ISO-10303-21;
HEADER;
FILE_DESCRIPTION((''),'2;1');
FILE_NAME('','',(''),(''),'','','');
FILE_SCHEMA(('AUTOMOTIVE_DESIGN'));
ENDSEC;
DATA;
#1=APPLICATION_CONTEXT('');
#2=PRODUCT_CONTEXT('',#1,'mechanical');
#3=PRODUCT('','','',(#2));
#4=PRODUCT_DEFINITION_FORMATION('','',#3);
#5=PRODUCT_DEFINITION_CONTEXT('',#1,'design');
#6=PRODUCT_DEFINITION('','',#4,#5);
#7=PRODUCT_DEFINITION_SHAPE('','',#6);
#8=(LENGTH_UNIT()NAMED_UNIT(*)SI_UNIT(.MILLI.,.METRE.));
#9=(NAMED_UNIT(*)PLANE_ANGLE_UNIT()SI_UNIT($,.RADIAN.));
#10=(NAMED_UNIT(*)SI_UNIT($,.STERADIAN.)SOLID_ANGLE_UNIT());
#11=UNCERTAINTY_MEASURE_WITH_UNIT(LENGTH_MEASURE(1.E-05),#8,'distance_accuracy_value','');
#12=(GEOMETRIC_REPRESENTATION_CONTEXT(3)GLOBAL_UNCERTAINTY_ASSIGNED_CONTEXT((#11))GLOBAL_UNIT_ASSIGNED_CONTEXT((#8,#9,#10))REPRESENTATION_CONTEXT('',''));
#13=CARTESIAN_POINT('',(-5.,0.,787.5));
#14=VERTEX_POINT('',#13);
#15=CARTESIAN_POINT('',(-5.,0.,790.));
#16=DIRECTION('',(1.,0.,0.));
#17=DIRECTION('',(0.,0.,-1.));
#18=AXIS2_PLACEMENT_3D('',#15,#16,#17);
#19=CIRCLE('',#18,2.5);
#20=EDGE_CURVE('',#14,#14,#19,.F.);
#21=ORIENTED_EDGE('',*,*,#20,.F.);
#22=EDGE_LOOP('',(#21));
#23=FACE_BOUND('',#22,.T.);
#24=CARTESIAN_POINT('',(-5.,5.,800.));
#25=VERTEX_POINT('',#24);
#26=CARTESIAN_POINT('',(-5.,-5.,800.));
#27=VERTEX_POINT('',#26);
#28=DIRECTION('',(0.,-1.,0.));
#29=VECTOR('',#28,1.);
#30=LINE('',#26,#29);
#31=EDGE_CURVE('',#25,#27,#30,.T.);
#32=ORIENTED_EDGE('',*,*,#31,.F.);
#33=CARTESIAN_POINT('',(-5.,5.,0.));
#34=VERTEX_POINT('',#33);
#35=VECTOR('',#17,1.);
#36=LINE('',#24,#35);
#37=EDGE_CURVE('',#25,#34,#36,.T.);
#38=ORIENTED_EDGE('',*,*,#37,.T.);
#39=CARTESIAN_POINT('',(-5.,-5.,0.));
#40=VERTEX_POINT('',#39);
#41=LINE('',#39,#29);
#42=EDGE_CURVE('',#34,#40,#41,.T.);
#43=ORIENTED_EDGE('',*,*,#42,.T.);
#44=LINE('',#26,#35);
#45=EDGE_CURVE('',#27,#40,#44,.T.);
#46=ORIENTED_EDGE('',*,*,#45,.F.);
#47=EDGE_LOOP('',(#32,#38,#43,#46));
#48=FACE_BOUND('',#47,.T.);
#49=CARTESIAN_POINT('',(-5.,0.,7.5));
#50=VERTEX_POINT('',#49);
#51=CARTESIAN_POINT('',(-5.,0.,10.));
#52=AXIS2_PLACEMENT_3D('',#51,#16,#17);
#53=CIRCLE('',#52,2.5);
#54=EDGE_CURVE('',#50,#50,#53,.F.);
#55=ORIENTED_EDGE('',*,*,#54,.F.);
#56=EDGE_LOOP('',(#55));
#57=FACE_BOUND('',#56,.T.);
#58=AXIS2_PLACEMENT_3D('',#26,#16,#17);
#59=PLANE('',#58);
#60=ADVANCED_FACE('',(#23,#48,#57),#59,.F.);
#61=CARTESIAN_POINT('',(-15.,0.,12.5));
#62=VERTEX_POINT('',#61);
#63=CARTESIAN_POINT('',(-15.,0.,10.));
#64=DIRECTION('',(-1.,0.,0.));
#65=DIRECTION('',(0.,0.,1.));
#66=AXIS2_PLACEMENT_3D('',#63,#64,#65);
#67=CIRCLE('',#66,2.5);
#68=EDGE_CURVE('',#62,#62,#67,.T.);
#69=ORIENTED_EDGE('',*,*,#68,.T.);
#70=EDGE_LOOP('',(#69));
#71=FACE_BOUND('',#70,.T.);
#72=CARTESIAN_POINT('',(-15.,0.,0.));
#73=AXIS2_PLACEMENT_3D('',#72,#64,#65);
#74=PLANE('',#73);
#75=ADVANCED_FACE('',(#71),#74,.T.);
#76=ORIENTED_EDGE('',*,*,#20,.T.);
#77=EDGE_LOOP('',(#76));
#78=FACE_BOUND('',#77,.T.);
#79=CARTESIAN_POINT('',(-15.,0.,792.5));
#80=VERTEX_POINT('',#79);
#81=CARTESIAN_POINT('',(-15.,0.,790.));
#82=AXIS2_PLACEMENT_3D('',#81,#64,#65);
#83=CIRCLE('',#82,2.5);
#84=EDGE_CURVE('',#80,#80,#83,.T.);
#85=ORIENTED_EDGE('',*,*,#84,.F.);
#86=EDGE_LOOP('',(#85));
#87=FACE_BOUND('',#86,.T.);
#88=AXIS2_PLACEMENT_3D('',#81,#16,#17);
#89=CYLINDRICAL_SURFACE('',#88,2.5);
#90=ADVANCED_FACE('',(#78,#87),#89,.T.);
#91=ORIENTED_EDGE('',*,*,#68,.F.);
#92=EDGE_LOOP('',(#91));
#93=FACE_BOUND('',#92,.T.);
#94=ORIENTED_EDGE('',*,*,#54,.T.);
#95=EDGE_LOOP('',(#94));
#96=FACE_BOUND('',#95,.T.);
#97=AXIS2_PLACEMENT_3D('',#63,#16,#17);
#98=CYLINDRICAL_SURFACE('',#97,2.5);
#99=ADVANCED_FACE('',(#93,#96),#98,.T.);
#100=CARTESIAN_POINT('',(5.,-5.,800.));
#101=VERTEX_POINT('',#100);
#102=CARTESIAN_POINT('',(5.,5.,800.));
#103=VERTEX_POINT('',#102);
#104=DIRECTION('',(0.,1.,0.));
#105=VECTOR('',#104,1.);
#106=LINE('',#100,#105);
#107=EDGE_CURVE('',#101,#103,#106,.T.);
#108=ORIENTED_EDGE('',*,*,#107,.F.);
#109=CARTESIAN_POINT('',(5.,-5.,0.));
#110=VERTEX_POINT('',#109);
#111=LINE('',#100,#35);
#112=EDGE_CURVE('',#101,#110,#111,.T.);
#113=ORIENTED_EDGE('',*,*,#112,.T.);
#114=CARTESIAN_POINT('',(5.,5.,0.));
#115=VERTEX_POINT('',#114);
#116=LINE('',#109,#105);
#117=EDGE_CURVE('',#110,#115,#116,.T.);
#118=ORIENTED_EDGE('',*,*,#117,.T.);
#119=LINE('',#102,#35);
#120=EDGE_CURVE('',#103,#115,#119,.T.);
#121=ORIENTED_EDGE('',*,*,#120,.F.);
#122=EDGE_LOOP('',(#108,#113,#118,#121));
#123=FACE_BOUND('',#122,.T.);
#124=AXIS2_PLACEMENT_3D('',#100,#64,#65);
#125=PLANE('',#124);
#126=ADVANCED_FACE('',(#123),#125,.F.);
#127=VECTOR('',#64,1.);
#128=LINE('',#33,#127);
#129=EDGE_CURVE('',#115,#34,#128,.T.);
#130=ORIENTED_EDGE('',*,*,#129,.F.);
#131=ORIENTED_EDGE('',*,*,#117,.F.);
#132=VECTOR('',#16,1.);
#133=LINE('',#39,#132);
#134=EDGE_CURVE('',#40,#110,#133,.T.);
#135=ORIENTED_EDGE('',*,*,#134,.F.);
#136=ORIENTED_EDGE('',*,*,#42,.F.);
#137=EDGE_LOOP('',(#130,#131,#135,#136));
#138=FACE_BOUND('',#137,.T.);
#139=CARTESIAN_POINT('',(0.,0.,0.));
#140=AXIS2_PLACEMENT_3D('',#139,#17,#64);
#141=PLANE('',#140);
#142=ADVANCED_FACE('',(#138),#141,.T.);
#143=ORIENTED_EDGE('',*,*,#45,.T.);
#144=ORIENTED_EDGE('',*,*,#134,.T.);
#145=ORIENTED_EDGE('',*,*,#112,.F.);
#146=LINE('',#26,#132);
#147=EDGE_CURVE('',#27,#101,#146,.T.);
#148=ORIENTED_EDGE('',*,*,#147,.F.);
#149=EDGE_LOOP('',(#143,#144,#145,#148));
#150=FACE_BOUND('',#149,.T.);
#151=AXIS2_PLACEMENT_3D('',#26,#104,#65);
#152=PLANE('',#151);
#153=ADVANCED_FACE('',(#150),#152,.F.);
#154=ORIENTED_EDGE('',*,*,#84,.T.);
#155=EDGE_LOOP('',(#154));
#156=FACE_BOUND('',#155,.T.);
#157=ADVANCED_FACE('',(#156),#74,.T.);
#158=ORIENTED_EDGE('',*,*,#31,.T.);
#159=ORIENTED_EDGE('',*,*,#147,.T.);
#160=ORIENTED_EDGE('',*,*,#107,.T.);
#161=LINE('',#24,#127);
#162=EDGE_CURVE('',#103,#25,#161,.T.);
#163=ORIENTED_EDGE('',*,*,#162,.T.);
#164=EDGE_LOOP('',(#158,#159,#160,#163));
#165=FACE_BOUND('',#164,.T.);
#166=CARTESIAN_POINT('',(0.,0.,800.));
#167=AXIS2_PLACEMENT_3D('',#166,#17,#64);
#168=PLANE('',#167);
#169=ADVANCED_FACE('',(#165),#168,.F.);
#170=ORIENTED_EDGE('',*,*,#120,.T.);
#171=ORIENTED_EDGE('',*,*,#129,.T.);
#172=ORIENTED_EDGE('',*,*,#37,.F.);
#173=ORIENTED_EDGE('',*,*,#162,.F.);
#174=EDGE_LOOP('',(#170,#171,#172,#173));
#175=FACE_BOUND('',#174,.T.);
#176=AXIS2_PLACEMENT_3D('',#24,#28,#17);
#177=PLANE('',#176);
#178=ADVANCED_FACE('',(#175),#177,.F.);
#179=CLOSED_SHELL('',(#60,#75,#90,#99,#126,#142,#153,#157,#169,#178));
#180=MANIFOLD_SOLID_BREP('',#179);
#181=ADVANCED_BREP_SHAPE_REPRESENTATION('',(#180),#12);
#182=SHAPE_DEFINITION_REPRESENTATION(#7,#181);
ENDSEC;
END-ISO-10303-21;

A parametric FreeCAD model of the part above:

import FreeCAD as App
import Part
import Sketcher
from FreeCAD import Vector


def add_polygon(sketch, points):
    """Adds a closed chain of lines whose ends are joined by coincident constraints."""
    first, n = sketch.GeometryCount, len(points)
    for a, b in zip(points, points[1:] + points[:1]):
        sketch.addGeometry(Part.LineSegment(App.Vector(*a, 0), App.Vector(*b, 0)), False)
    for i in range(n):
        sketch.addConstraint(Sketcher.Constraint("Coincident", first + i, 2, first + (i + 1) % n, 1))

doc = App.newDocument("Part")
params = doc.addObject("Spreadsheet::Sheet", "Params")
for row, (alias, value) in enumerate([
    ("sketch1_width", "10 mm"),
    ("pad1_length", "800 mm"),
    ("sketch2_diameter", "5 mm"),
    ("pad2_length", "10 mm"),
], start=1):
    params.set(f"A{row}", alias)
    params.set(f"B{row}", "=" + value)
    params.setAlias(f"B{row}", alias)

body = doc.addObject("PartDesign::Body", "Body")

# Sketch on XY plane
sketch1 = body.newObject("Sketcher::SketchObject", "Sketch")
sketch1.AttachmentSupport = (doc.getObject("XY_Plane"), [""])
sketch1.MapMode = "FlatFace"
add_polygon(sketch1, [(-5, 5), (-5, -5), (5, -5), (5, 5)])  # lines 0-3
sketch1.addConstraint([
    Sketcher.Constraint("Vertical", 0),
    Sketcher.Constraint("Horizontal", 1),
    Sketcher.Constraint("Vertical", 2),
    Sketcher.Constraint("Horizontal", 3),
    Sketcher.Constraint("Symmetric", 0, 2, 2, 2, -1, 1),
    Sketcher.Constraint("Equal", 3, 0),
    Sketcher.Constraint("DistanceX", 1, 1, 1, 2, 10.0),
])
sketch1.setExpression("Constraints[10]", "Params.sketch1_width")
pad1 = body.newObject("PartDesign::Pad", "Pad")
pad1.Profile = sketch1
pad1.setExpression("Length", "Params.pad1_length")

# Sketch on YZ plane
sketch2 = body.newObject("Sketcher::SketchObject", "Sketch001")
sketch2.AttachmentSupport = (doc.getObject("YZ_Plane"), [""])
sketch2.MapMode = "FlatFace"
sketch2.AttachmentOffset = App.Placement(Vector(0, 0, -5), App.Rotation())
sketch2.addGeometry([
    Part.Circle(Vector(0, 10, 0), Vector(0, 0, 1), 2.5),
    Part.Circle(Vector(0, 790, 0), Vector(0, 0, 1), 2.5),
], False)
sketch2.addConstraint([
    Sketcher.Constraint("Equal", 0, 1),
    Sketcher.Constraint("PointOnObject", 0, 3, -2),
    Sketcher.Constraint("PointOnObject", 1, 3, -2),
    Sketcher.Constraint("Diameter", 0, 5.0),
    Sketcher.Constraint("DistanceY", -1, 1, 0, 3, 10.0),
    Sketcher.Constraint("DistanceY", -1, 1, 1, 3, 790.0),
])
sketch2.setExpression("Constraints[3]", "Params.sketch2_diameter")
pad2 = body.newObject("PartDesign::Pad", "Pad001")
pad2.Profile = sketch2
pad2.setExpression("Length", "Params.pad2_length")
pad2.Reversed = True

doc.recompute()
